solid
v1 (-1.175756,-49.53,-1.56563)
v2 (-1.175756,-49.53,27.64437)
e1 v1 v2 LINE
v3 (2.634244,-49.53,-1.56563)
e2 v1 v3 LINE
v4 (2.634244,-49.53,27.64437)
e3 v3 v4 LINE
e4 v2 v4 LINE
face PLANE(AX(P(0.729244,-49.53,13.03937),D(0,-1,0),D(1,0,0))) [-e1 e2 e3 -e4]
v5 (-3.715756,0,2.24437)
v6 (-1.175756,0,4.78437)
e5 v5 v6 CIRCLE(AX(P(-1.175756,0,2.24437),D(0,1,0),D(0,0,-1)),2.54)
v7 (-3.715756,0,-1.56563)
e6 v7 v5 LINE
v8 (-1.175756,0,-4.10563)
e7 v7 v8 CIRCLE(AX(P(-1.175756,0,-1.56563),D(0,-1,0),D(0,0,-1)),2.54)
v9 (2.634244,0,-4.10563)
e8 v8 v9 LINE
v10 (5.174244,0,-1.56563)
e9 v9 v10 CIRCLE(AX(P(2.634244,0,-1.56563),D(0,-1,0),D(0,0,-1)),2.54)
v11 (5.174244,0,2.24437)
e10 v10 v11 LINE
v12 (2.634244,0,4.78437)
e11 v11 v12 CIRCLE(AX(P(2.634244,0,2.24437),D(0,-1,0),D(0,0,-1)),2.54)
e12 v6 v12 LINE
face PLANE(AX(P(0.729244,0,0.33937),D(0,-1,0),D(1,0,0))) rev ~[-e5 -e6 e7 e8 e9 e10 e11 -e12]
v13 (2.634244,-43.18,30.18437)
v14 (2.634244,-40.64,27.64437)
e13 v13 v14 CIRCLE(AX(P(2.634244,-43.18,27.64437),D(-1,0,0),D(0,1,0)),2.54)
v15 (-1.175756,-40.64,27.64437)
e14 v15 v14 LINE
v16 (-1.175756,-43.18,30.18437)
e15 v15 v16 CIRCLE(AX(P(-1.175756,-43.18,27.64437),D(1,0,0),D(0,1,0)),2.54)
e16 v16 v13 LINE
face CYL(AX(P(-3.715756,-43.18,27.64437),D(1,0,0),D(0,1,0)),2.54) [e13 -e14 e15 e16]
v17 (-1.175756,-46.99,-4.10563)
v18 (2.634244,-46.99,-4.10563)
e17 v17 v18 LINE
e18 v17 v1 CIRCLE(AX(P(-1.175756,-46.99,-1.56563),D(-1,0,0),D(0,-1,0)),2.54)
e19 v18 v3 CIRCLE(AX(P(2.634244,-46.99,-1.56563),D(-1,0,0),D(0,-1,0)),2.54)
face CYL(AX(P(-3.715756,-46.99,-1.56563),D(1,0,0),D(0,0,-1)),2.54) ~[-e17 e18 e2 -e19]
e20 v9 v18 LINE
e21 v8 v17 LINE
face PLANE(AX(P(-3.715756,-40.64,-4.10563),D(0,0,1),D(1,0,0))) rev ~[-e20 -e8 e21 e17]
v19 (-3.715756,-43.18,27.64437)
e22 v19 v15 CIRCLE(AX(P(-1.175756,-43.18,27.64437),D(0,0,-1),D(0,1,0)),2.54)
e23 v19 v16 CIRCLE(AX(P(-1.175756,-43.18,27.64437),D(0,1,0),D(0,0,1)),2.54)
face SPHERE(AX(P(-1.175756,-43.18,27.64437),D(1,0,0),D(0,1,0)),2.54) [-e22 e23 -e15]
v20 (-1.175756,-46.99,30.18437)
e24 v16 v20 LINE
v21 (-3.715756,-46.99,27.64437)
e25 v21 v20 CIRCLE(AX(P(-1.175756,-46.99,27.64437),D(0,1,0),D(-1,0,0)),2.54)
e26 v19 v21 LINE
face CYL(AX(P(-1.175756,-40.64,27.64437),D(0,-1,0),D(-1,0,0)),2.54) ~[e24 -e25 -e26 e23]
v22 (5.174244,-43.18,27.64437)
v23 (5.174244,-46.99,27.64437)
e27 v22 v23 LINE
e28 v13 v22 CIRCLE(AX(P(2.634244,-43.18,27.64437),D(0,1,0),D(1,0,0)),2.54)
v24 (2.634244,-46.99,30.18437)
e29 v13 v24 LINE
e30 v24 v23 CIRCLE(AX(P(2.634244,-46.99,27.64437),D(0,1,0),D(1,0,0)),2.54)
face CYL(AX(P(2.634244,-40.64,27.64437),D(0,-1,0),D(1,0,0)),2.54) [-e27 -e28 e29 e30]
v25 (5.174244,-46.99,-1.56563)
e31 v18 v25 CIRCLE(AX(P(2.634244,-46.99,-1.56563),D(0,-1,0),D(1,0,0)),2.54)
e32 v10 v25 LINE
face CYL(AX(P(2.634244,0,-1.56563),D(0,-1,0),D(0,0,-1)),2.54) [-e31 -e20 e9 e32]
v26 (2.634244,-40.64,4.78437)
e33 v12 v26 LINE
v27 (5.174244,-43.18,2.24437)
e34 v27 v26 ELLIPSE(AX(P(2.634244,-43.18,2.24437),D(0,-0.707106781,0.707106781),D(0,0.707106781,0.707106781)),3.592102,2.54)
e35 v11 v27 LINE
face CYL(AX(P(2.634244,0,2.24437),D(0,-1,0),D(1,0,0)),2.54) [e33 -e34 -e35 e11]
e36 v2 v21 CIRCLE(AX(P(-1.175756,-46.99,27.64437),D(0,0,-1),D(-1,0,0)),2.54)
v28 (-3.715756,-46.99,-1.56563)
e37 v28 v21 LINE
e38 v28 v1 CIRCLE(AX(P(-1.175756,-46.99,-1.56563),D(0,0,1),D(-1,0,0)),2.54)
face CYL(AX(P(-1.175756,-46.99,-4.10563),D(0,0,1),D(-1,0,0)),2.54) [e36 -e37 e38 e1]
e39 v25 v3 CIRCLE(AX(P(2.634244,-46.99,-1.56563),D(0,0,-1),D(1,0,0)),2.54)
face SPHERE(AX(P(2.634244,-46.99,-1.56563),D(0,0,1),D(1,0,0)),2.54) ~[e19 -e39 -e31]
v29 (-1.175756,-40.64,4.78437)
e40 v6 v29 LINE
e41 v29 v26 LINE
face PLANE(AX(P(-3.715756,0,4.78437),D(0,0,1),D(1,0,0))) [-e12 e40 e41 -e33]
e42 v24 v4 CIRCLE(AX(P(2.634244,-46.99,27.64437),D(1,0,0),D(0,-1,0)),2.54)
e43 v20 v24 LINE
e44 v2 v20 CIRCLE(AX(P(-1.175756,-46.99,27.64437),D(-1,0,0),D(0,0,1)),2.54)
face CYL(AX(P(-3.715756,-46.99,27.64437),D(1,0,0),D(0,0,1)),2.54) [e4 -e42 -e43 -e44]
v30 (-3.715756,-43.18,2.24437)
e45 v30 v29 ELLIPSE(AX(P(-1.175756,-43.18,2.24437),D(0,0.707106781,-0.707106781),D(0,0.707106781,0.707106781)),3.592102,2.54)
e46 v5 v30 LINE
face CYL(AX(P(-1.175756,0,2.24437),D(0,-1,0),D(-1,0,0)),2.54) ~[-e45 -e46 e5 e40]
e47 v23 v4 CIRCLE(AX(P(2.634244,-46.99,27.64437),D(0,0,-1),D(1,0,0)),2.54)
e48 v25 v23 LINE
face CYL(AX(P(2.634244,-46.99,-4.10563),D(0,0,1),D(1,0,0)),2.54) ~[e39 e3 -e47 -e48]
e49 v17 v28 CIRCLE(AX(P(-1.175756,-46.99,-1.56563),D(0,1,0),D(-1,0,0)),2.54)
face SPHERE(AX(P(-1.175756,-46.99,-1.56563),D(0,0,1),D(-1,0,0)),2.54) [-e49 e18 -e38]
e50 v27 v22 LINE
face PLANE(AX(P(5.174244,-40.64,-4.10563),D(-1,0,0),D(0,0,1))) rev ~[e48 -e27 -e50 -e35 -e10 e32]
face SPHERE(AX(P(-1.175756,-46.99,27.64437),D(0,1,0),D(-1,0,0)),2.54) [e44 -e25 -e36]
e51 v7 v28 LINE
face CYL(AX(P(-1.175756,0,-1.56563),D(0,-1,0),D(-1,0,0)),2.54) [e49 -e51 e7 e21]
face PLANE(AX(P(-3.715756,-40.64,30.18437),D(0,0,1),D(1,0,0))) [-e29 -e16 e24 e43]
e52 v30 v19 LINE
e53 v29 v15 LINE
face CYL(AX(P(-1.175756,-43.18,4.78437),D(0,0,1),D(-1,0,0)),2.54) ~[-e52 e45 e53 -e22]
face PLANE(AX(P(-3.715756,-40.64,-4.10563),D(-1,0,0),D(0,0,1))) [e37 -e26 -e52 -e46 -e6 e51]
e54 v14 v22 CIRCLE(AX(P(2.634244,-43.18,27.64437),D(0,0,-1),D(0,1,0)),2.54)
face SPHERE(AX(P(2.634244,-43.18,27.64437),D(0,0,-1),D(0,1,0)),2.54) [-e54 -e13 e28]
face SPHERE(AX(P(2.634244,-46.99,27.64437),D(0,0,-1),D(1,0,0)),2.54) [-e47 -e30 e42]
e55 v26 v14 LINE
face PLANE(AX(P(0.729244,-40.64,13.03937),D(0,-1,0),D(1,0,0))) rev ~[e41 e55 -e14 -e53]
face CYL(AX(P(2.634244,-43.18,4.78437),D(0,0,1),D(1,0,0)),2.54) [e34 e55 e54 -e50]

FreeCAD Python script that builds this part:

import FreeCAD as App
import Part
import Sketcher
from FreeCAD import Vector
Q = App.Units.Quantity


def edges_at(feature, points):
    """Names of the edges that pass closest to the given points."""
    edges = feature.Shape.Edges
    near = lambda p: min(range(len(edges)), key=lambda i: edges[i].distToShape(Part.Vertex(*p))[0])
    return sorted({f"Edge{near(p) + 1}" for p in points})


def add_polygon(sketch, points):
    """Adds a closed chain of lines whose ends are joined by coincident constraints."""
    first, n = sketch.GeometryCount, len(points)
    for a, b in zip(points, points[1:] + points[:1]):
        sketch.addGeometry(Part.LineSegment(App.Vector(*a, 0), App.Vector(*b, 0)), False)
    for i in range(n):
        sketch.addConstraint(Sketcher.Constraint("Coincident", first + i, 2, first + (i + 1) % n, 1))

doc = App.newDocument("Part")
params = doc.addObject("Spreadsheet::Sheet", "Params")
for row, (alias, value) in enumerate([
    ("sketch1_width", "0.35 in"),
    ("pad1_length", "1.6 in"),
    ("sketch2_width", "0.35 in"),
    ("sketch2_height", "1.35 in"),
    ("pad2_length", "0.35 in"),
    ("fillet_radius", "0.1 in"),
], start=1):
    params.set(f"A{row}", alias)
    params.set(f"B{row}", "=" + value)
    params.setAlias(f"B{row}", alias)

body = doc.addObject("PartDesign::Body", "Body")

sketch1 = doc.addObject("Sketcher::SketchObject", "Sketch")
body.addObject(sketch1)
sketch1.AttachmentSupport = (doc.XZ_Plane, [""])
sketch1.MapMode = "FlatFace"
add_polygon(sketch1, [(-4, 5), (-4, -4), (5, -4), (5, 5)])
sketch1.addConstraint([
    Sketcher.Constraint("Vertical", 0),
    Sketcher.Constraint("Horizontal", 1),
    Sketcher.Constraint("Vertical", 2),
    Sketcher.Constraint("Horizontal", 3),
    Sketcher.Constraint("Equal", 3, 0),
    Sketcher.Constraint("DistanceX", 1, 1, 1, 2, Q("0.35 in")),
    Sketcher.Constraint("DistanceY", 0, 2, -1, 1, Q("4.10563 mm")),
    Sketcher.Constraint("DistanceX", 0, 2, -1, 1, Q("3.715756 mm")),
])
sketch1.setExpression("Constraints[9]", "Params.sketch1_width")
pad1 = doc.addObject("PartDesign::Pad", "Pad")
body.addObject(pad1)
pad1.Profile = sketch1
pad1.setExpression("Length", "Params.pad1_length")

sketch2 = doc.addObject("Sketcher::SketchObject", "Sketch001")
body.addObject(sketch2)
sketch2.AttachmentSupport = (doc.XZ_Plane, [""])
sketch2.MapMode = "FlatFace"
sketch2.AttachmentOffset = App.Placement(Vector(0, 0, 1.6 * 25.4), App.Rotation())
add_polygon(sketch2, [(-4, 30), (-4, -4), (5, -4), (5, 30)])
sketch2.addConstraint([
    Sketcher.Constraint("Vertical", 0),
    Sketcher.Constraint("Horizontal", 1),
    Sketcher.Constraint("Vertical", 2),
    Sketcher.Constraint("Horizontal", 3),
    Sketcher.Constraint("DistanceX", 1, 1, 1, 2, Q("0.35 in")),
    Sketcher.Constraint("DistanceY", 0, 2, 0, 1, Q("1.35 in")),
    Sketcher.Constraint("DistanceY", 0, 2, -1, 1, Q("4.10563 mm")),
    Sketcher.Constraint("DistanceX", 0, 2, -1, 1, Q("3.715756 mm")),
])
sketch2.setExpression("Constraints[8]", "Params.sketch2_width")
sketch2.setExpression("Constraints[9]", "Params.sketch2_height")
pad2 = doc.addObject("PartDesign::Pad", "Pad001")
body.addObject(pad2)
pad2.Profile = sketch2
pad2.setExpression("Length", "Params.pad2_length")
doc.recompute()

fillet = doc.addObject("PartDesign::Fillet", "Fillet")
body.addObject(fillet)
fillet.Base = (pad2, edges_at(pad2, [
    (5.174, -40.64, 17.484),
    (0.729, -40.64, 30.184),
    (-3.716, -40.64, 17.484),
    (-3.716, -45.085, 30.184),
    (-3.716, -49.53, 13.039),
    (-3.716, -20.32, 4.784),
    (-3.716, -24.765, -4.106),
    (5.174, -20.32, 4.784),
    (5.174, -49.53, 13.039),
    (5.174, -24.765, -4.106),
    (0.729, -49.53, -4.106),
    (5.174, -45.085, 30.184),
    (0.729, -49.53, 30.184),
]))
fillet.setExpression("Radius", "Params.fillet_radius")

doc.recompute()
